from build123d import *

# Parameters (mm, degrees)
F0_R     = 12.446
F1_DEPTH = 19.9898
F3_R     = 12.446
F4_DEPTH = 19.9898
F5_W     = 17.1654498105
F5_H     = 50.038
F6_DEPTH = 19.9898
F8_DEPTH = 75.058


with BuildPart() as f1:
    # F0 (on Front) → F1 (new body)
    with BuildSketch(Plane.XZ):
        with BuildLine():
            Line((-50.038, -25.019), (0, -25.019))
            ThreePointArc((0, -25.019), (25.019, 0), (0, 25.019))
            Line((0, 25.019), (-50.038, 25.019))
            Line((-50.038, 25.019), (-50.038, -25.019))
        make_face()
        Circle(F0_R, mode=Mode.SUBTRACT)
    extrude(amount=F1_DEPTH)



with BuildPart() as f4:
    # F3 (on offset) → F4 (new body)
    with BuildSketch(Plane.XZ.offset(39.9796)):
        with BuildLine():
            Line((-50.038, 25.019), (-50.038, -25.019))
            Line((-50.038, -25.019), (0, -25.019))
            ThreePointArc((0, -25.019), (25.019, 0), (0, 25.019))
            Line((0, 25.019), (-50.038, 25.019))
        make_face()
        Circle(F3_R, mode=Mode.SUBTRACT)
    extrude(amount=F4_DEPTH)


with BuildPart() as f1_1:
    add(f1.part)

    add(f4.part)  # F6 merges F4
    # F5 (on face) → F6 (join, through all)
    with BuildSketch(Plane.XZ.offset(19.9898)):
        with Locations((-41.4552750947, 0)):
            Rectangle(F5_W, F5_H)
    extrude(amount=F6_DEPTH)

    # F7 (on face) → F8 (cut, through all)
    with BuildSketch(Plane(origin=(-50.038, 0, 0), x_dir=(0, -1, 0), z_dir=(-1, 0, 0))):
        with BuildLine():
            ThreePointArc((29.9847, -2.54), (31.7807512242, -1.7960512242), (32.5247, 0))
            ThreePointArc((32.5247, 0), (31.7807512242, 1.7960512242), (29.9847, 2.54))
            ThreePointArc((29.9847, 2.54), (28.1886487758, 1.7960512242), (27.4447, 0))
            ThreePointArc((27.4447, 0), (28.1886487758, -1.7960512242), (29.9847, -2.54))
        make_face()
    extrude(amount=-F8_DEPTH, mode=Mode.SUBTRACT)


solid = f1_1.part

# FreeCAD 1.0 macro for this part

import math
import FreeCAD as App
import Part
import Sketcher
from FreeCAD import Vector
Q = App.Units.Quantity


def add_polygon(sketch, points):
    """Adds a closed chain of lines whose ends are joined by coincident constraints."""
    first, n = sketch.GeometryCount, len(points)
    for a, b in zip(points, points[1:] + points[:1]):
        sketch.addGeometry(Part.LineSegment(App.Vector(*a, 0), App.Vector(*b, 0)), False)
    for i in range(n):
        sketch.addConstraint(Sketcher.Constraint("Coincident", first + i, 2, first + (i + 1) % n, 1))

doc = App.newDocument("Part")
body = doc.addObject("PartDesign::Body", "Body")

sketch1 = body.newObject("Sketcher::SketchObject", "Sketch")
sketch1.AttachmentSupport = (doc.getObject("XZ_Plane"), [""])
sketch1.MapMode = "FlatFace"
sketch1.addGeometry(Part.LineSegment(Vector(-50.038, -25.019, 0), Vector(0, -25.019, 0)), False)
sketch1.addGeometry(Part.ArcOfCircle(Part.Circle(Vector(0, 0, 0), Vector(0, 0, 1), 25.019), math.radians(-90), math.radians(90)), False)
sketch1.addGeometry(Part.LineSegment(Vector(0, 25.019, 0), Vector(-50.038, 25.019, 0)), False)
sketch1.addGeometry(Part.LineSegment(Vector(-50.038, 25.019, 0), Vector(-50.038, -25.019, 0)), False)
sketch1.addGeometry(Part.Circle(Vector(0, 0, 0), Vector(0, 0, 1), 12.446), False)
sketch1.addConstraint(Sketcher.Constraint("Tangent", 0, 2, 1, 1))
sketch1.addConstraint(Sketcher.Constraint("Tangent", 1, 2, 2, 1))
sketch1.addConstraint(Sketcher.Constraint("Coincident", 2, 2, 3, 1))
sketch1.addConstraint(Sketcher.Constraint("Coincident", 3, 2, 0, 1))
sketch1.addConstraint(Sketcher.Constraint("Horizontal", 0))
sketch1.addConstraint(Sketcher.Constraint("Horizontal", 2))
sketch1.addConstraint(Sketcher.Constraint("Vertical", 3))
sketch1.addConstraint(Sketcher.Constraint("Coincident", 1, 3, -1, 1))
sketch1.addConstraint(Sketcher.Constraint("Coincident", 4, 3, -1, 1))
sketch1.addConstraint(Sketcher.Constraint("Equal", 2, 3))
sketch1.addConstraint(Sketcher.Constraint("Diameter", 4, Q("0.98 in")))
sketch1.addConstraint(Sketcher.Constraint("Radius", 1, Q("0.985 in")))
pad1 = body.newObject("PartDesign::Pad", "Pad")
pad1.Profile = sketch1
pad1.Length = Q("0.787 in")
body2 = doc.addObject("PartDesign::Body", "Body001")

sketch2 = body2.newObject("Sketcher::SketchObject", "Sketch001")
sketch2.AttachmentSupport = (doc.getObject("XZ_Plane001"), [""])
sketch2.MapMode = "FlatFace"
sketch2.AttachmentOffset = App.Placement(Vector(0, 0, 1.574 * 25.4), App.Rotation())
sketch2.addGeometry(Part.LineSegment(Vector(-50.038, 25.019, 0), Vector(-50.038, -25.019, 0)), False)
sketch2.addGeometry(Part.LineSegment(Vector(-50.038, -25.019, 0), Vector(0, -25.019, 0)), False)
sketch2.addGeometry(Part.ArcOfCircle(Part.Circle(Vector(0, 0, 0), Vector(0, 0, 1), 25.019), math.radians(-90), math.radians(90)), False)
sketch2.addGeometry(Part.LineSegment(Vector(0, 25.019, 0), Vector(-50.038, 25.019, 0)), False)
sketch2.addGeometry(Part.Circle(Vector(0, 0, 0), Vector(0, 0, 1), 12.446), False)
sketch2.addConstraint(Sketcher.Constraint("Coincident", 0, 2, 1, 1))
sketch2.addConstraint(Sketcher.Constraint("Tangent", 1, 2, 2, 1))
sketch2.addConstraint(Sketcher.Constraint("Tangent", 2, 2, 3, 1))
sketch2.addConstraint(Sketcher.Constraint("Coincident", 3, 2, 0, 1))
sketch2.addConstraint(Sketcher.Constraint("Vertical", 0))
sketch2.addConstraint(Sketcher.Constraint("Horizontal", 1))
sketch2.addConstraint(Sketcher.Constraint("Horizontal", 3))
sketch2.addConstraint(Sketcher.Constraint("Coincident", 2, 3, -1, 1))
sketch2.addConstraint(Sketcher.Constraint("Coincident", 4, 3, -1, 1))
sketch2.addConstraint(Sketcher.Constraint("Equal", 3, 0))
sketch2.addConstraint(Sketcher.Constraint("Diameter", 4, Q("0.98 in")))
sketch2.addConstraint(Sketcher.Constraint("Radius", 2, Q("0.985 in")))
pad2 = body2.newObject("PartDesign::Pad", "Pad001")
pad2.Profile = sketch2
pad2.Length = Q("0.787 in")
body.AllowCompound = True
doc.recompute()

boolean = body.newObject("PartDesign::Boolean", "Boolean")
boolean.Type = "Fuse"
boolean.addObjects([body2])

sketch3 = body.newObject("Sketcher::SketchObject", "Sketch002")
sketch3.AttachmentSupport = (doc.getObject("XZ_Plane"), [""])
sketch3.MapMode = "FlatFace"
sketch3.AttachmentOffset = App.Placement(Vector(0, 0, 0.787 * 25.4), App.Rotation())
add_polygon(sketch3, [(-50.038, 25.019), (-50.038, -25.019), (-32.87255, -25.019), (-32.87255, 25.019)])
sketch3.addConstraint(Sketcher.Constraint("Vertical", 0))
sketch3.addConstraint(Sketcher.Constraint("Horizontal", 1))
sketch3.addConstraint(Sketcher.Constraint("Vertical", 2))
sketch3.addConstraint(Sketcher.Constraint("Horizontal", 3))
sketch3.addConstraint(Sketcher.Constraint("DistanceY", 0, 2, 0, 1, Q("1.97 in")))
sketch3.addConstraint(Sketcher.Constraint("DistanceX", 0, 2, -1, 1, Q("1.97 in")))
sketch3.addConstraint(Sketcher.Constraint("DistanceY", 0, 2, -1, 1, Q("0.985 in")))
sketch3.addConstraint(Sketcher.Constraint("DistanceX", 1, 1, 1, 2, Q("17.16545 mm")))
pad3 = body.newObject("PartDesign::Pad", "Pad002")
pad3.Profile = sketch3
pad3.Type = "UpToLast"

sketch4 = body.newObject("Sketcher::SketchObject", "Sketch003")
sketch4.AttachmentSupport = (doc.getObject("YZ_Plane"), [""])
sketch4.MapMode = "FlatFace"
sketch4.AttachmentOffset = App.Placement(Vector(0, 0, -1.97 * 25.4), App.Rotation())
sketch4.addGeometry(Part.ArcOfCircle(Part.Circle(Vector(-29.9847, 0, 0), Vector(0, 0, 1), 2.54), math.radians(180), math.radians(270)), False)
sketch4.addGeometry(Part.ArcOfCircle(Part.Circle(Vector(-29.9847, 0, 0), Vector(0, 0, 1), 2.54), math.radians(90), math.radians(180)), False)
sketch4.addGeometry(Part.ArcOfCircle(Part.Circle(Vector(-29.9847, 0, 0), Vector(0, 0, 1), 2.54), math.radians(0), math.radians(90)), False)
sketch4.addGeometry(Part.ArcOfCircle(Part.Circle(Vector(-29.9847, 0, 0), Vector(0, 0, 1), 2.54), math.radians(-90), math.radians(0)), False)
sketch4.addConstraint(Sketcher.Constraint("Tangent", 0, 1, 1, 2))
sketch4.addConstraint(Sketcher.Constraint("Tangent", 1, 1, 2, 2))
sketch4.addConstraint(Sketcher.Constraint("Tangent", 2, 1, 3, 2))
sketch4.addConstraint(Sketcher.Constraint("Tangent", 3, 1, 0, 2))
sketch4.addConstraint(Sketcher.Constraint("Equal", 0, 1))
sketch4.addConstraint(Sketcher.Constraint("Symmetric", 1, 1, 3, 1, -1))
sketch4.addConstraint(Sketcher.Constraint("PointOnObject", 0, 1, -1))
sketch4.addConstraint(Sketcher.Constraint("PointOnObject", 2, 1, -1))
sketch4.addConstraint(Sketcher.Constraint("Vertical", 3, 3, 1, 1))
sketch4.addConstraint(Sketcher.Constraint("Radius", 0, Q("0.1 in")))
sketch4.addConstraint(Sketcher.Constraint("DistanceX", 0, 3, -1, 1, Q("1.1805 in")))
pocket1 = body.newObject("PartDesign::Pocket", "Pocket")
pocket1.Profile = sketch4
pocket1.Type = "ThroughAll"
pocket1.Reversed = True

doc.recompute()
